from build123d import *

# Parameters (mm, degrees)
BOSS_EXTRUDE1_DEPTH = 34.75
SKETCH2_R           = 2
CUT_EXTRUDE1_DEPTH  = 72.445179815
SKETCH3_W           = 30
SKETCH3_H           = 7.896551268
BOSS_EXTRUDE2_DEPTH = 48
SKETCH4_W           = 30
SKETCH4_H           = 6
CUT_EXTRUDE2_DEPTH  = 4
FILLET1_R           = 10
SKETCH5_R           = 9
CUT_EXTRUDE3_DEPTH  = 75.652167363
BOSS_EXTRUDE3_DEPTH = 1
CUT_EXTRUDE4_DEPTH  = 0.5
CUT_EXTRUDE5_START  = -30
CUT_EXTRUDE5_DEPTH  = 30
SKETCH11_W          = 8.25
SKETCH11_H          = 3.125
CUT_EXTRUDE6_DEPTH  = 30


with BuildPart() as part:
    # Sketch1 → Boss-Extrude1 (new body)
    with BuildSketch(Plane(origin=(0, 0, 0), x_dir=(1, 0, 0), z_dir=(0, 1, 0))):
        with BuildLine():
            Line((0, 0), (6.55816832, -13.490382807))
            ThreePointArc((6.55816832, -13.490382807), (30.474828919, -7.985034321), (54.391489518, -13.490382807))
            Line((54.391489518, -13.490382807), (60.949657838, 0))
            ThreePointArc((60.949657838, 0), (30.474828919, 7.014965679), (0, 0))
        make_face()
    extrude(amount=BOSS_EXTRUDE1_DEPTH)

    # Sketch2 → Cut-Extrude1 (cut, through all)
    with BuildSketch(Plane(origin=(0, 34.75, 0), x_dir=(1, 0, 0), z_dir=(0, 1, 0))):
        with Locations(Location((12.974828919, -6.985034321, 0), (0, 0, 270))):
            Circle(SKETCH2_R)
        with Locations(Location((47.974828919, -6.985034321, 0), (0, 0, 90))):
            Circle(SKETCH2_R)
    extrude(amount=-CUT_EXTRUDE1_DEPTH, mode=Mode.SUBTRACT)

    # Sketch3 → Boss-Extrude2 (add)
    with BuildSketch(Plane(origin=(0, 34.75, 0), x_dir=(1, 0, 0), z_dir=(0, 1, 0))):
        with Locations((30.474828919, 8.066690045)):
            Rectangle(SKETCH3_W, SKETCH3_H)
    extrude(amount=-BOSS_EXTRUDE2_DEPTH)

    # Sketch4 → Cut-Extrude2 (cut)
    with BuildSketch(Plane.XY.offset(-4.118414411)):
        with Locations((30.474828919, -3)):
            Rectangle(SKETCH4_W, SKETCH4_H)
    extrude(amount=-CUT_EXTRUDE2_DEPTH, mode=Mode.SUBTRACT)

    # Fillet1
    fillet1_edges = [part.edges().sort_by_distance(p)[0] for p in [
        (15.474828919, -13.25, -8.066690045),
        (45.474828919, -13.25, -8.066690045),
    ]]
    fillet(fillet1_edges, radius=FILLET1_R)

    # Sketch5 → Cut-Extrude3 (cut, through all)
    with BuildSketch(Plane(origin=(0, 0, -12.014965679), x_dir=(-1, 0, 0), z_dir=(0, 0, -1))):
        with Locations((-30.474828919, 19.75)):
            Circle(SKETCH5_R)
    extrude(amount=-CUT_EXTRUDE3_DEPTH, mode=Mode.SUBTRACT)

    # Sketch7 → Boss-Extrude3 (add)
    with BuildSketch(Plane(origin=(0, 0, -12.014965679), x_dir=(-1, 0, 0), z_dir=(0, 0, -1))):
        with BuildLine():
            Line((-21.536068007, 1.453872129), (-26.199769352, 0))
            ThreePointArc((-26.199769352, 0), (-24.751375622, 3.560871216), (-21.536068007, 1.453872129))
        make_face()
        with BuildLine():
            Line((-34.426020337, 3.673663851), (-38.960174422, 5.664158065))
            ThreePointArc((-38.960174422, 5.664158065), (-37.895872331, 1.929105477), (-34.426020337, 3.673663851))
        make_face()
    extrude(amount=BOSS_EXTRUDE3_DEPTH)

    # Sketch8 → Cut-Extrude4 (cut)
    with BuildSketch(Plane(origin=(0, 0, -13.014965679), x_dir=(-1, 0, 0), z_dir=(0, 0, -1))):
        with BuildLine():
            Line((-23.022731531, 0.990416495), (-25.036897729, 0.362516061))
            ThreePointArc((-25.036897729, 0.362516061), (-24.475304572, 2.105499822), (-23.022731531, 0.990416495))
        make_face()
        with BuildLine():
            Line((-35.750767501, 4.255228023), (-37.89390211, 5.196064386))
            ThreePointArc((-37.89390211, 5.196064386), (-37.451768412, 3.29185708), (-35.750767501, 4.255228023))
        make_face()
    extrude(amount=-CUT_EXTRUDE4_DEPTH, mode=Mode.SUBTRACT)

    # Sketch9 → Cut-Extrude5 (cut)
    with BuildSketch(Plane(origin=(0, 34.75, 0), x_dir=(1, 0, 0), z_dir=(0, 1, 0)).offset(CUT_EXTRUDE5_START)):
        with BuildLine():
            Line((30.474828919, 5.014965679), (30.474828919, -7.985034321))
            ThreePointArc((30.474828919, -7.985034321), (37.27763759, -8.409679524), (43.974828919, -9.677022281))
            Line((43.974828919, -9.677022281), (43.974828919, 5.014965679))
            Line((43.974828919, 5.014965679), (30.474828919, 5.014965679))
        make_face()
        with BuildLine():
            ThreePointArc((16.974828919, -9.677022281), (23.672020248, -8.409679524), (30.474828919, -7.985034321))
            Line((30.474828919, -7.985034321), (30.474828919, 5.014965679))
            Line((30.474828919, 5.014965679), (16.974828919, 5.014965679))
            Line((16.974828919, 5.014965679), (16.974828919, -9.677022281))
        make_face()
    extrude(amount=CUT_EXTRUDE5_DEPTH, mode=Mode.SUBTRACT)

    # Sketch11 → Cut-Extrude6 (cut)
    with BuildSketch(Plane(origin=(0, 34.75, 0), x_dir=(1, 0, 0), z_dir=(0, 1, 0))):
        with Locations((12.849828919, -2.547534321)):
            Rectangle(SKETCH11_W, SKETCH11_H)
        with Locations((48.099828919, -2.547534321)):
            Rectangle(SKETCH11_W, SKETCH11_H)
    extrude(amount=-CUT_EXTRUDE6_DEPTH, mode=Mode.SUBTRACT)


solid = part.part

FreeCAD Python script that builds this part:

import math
import FreeCAD as App
import Part
import Sketcher
from FreeCAD import Vector


def edges_at(feature, points):
    """Names of the edges that pass closest to the given points."""
    edges = feature.Shape.Edges
    near = lambda p: min(range(len(edges)), key=lambda i: edges[i].distToShape(Part.Vertex(*p))[0])
    return sorted({f"Edge{near(p) + 1}" for p in points})


def add_polygon(sketch, points):
    """Adds a closed chain of lines whose ends are joined by coincident constraints."""
    first, n = sketch.GeometryCount, len(points)
    for a, b in zip(points, points[1:] + points[:1]):
        sketch.addGeometry(Part.LineSegment(App.Vector(*a, 0), App.Vector(*b, 0)), False)
    for i in range(n):
        sketch.addConstraint(Sketcher.Constraint("Coincident", first + i, 2, first + (i + 1) % n, 1))

doc = App.newDocument("Part")
body = doc.addObject("PartDesign::Body", "Body")

sketch1 = body.newObject("Sketcher::SketchObject", "Sketch")
sketch1.AttachmentSupport = (doc.getObject("XZ_Plane"), [""])
sketch1.MapMode = "FlatFace"
sketch1.addGeometry(Part.LineSegment(Vector(0, 0, 0), Vector(7, 13, 0)), False)
sketch1.addGeometry(Part.ArcOfCircle(Part.Circle(Vector(30, 63, 0), Vector(0, 0, 1), 55), math.radians(-116), math.radians(-64)), False)
sketch1.addGeometry(Part.LineSegment(Vector(54, 13, 0), Vector(61, 0, 0)), False)
sketch1.addGeometry(Part.ArcOfCircle(Part.Circle(Vector(30, 63, 0), Vector(0, 0, 1), 70), math.radians(-116), math.radians(-64)), False)
sketch1.addConstraint(Sketcher.Constraint("Coincident", 0, 2, 1, 1))
sketch1.addConstraint(Sketcher.Constraint("Coincident", 1, 2, 2, 1))
sketch1.addConstraint(Sketcher.Constraint("Coincident", 2, 2, 3, 2))
sketch1.addConstraint(Sketcher.Constraint("Coincident", 3, 1, 0, 1))
sketch1.addConstraint(Sketcher.Constraint("Coincident", 3, 1, -1, 1))
sketch1.addConstraint(Sketcher.Constraint("Coincident", 3, 3, 1, 3))
sketch1.addConstraint(Sketcher.Constraint("PointOnObject", 2, 2, -1))
sketch1.addConstraint(Sketcher.Constraint("Horizontal", 0, 2, 1, 2))
sketch1.addConstraint(Sketcher.Constraint("Distance", 0, 15.0))
sketch1.addConstraint(Sketcher.Constraint("Radius", 1, 54.70276))
sketch1.addConstraint(Sketcher.Constraint("DistanceX", -1, 1, 1, 3, 30.474829))
sketch1.addConstraint(Sketcher.Constraint("DistanceX", -1, 1, 0, 2, 6.558168))
pad1 = body.newObject("PartDesign::Pad", "Pad")
pad1.Profile = sketch1
pad1.Length = 34.75
pad1.Reversed = True

sketch2 = body.newObject("Sketcher::SketchObject", "Sketch001")
sketch2.AttachmentSupport = (doc.getObject("XZ_Plane"), [""])
sketch2.MapMode = "FlatFace"
sketch2.AttachmentOffset = App.Placement(Vector(0, 0, -34.75), App.Rotation())
sketch2.addGeometry(Part.Circle(Vector(13, 7, 0), Vector(0, 0, 1), 2), False)
sketch2.addGeometry(Part.Circle(Vector(48, 7, 0), Vector(0, 0, 1), 2), False)
sketch2.addConstraint(Sketcher.Constraint("Equal", 0, 1))
sketch2.addConstraint(Sketcher.Constraint("Horizontal", 0, 3, 1, 3))
sketch2.addConstraint(Sketcher.Constraint("Diameter", 0, 4.0))
sketch2.addConstraint(Sketcher.Constraint("DistanceX", 0, 3, 1, 3, 35.0))
sketch2.addConstraint(Sketcher.Constraint("DistanceX", -1, 1, 0, 3, 12.974829))
sketch2.addConstraint(Sketcher.Constraint("DistanceY", -1, 1, 0, 3, 6.985034))
pocket1 = body.newObject("PartDesign::Pocket", "Pocket")
pocket1.Profile = sketch2
pocket1.Type = "ThroughAll"
pocket1.Reversed = True

sketch3 = body.newObject("Sketcher::SketchObject", "Sketch002")
sketch3.AttachmentSupport = (doc.getObject("XZ_Plane"), [""])
sketch3.MapMode = "FlatFace"
sketch3.AttachmentOffset = App.Placement(Vector(0, 0, -34.75), App.Rotation())
add_polygon(sketch3, [(15, -12), (15, -4), (45, -4), (45, -12)])
sketch3.addConstraint(Sketcher.Constraint("Vertical", 0))
sketch3.addConstraint(Sketcher.Constraint("Horizontal", 1))
sketch3.addConstraint(Sketcher.Constraint("Vertical", 2))
sketch3.addConstraint(Sketcher.Constraint("Horizontal", 3))
sketch3.addConstraint(Sketcher.Constraint("DistanceX", 1, 1, 1, 2, 30.0))
sketch3.addConstraint(Sketcher.Constraint("DistanceY", 0, 1, 0, 2, 7.896551))
sketch3.addConstraint(Sketcher.Constraint("DistanceX", -1, 1, 0, 2, 15.474829))
sketch3.addConstraint(Sketcher.Constraint("DistanceY", 0, 2, -1, 1, 4.118414))
pad2 = body.newObject("PartDesign::Pad", "Pad001")
pad2.Profile = sketch3
pad2.Length = 48

sketch4 = body.newObject("Sketcher::SketchObject", "Sketch003")
sketch4.AttachmentSupport = (doc.getObject("XY_Plane"), [""])
sketch4.MapMode = "FlatFace"
sketch4.AttachmentOffset = App.Placement(Vector(0, 0, -4.118414), App.Rotation())
add_polygon(sketch4, [(15, 0), (15, -6), (45, -6), (45, 0)])
sketch4.addConstraint(Sketcher.Constraint("Vertical", 0))
sketch4.addConstraint(Sketcher.Constraint("Horizontal", 1))
sketch4.addConstraint(Sketcher.Constraint("Vertical", 2))
sketch4.addConstraint(Sketcher.Constraint("Horizontal", 3))
sketch4.addConstraint(Sketcher.Constraint("PointOnObject", 2, 2, -1))
sketch4.addConstraint(Sketcher.Constraint("DistanceX", 1, 1, 1, 2, 30.0))
sketch4.addConstraint(Sketcher.Constraint("DistanceY", 0, 2, 0, 1, 6.0))
sketch4.addConstraint(Sketcher.Constraint("DistanceX", -1, 1, 0, 2, 15.474829))
pocket2 = body.newObject("PartDesign::Pocket", "Pocket001")
pocket2.Profile = sketch4
pocket2.Length = 4
doc.recompute()

fillet = body.newObject("PartDesign::Fillet", "Fillet")
fillet.Base = (pocket2, edges_at(pocket2, [(15.475, -13.25, -8.067), (45.475, -13.25, -8.067)]))
fillet.Radius = 10

sketch5 = body.newObject("Sketcher::SketchObject", "Sketch004")
sketch5.AttachmentSupport = (doc.getObject("XY_Plane"), [""])
sketch5.MapMode = "FlatFace"
sketch5.AttachmentOffset = App.Placement(Vector(0, 0, -12.014966), App.Rotation())
sketch5.addGeometry(Part.Circle(Vector(30, 20, 0), Vector(0, 0, 1), 9), False)
sketch5.addConstraint(Sketcher.Constraint("Diameter", 0, 18.0))
sketch5.addConstraint(Sketcher.Constraint("DistanceY", -1, 1, 0, 3, 19.75))
sketch5.addConstraint(Sketcher.Constraint("DistanceX", -1, 1, 0, 3, 30.474829))
pocket3 = body.newObject("PartDesign::Pocket", "Pocket002")
pocket3.Profile = sketch5
pocket3.Type = "ThroughAll"
pocket3.Reversed = True

sketch6 = body.newObject("Sketcher::SketchObject", "Sketch005")
sketch6.AttachmentSupport = (doc.getObject("XY_Plane"), [""])
sketch6.MapMode = "FlatFace"
sketch6.AttachmentOffset = App.Placement(Vector(0, 0, -12.014966), App.Rotation())
sketch6.addGeometry(Part.LineSegment(Vector(26.2, 0, 0), Vector(21.5, 1.5, 0)), False)
sketch6.addGeometry(Part.ArcOfCircle(Part.Circle(Vector(24, 1.2, 0), Vector(0, 0, 1), 2.5), math.radians(-28), math.radians(174)), False)
sketch6.addGeometry(Part.LineSegment(Vector(34.4, 3.7, 0), Vector(39, 5.7, 0)), False)
sketch6.addGeometry(Part.ArcOfCircle(Part.Circle(Vector(36.9, 4.2, 0), Vector(0, 0, 1), 2.5), math.radians(-167), math.radians(34)), False)
sketch6.addConstraint(Sketcher.Constraint("Coincident", 0, 1, 1, 1))
sketch6.addConstraint(Sketcher.Constraint("Coincident", 1, 2, 0, 2))
sketch6.addConstraint(Sketcher.Constraint("Coincident", 2, 1, 3, 1))
sketch6.addConstraint(Sketcher.Constraint("Coincident", 3, 2, 2, 2))
sketch6.addConstraint(Sketcher.Constraint("PointOnObject", 0, 1, -1))
sketch6.addConstraint(Sketcher.Constraint("Radius", 1, 2.48912))
sketch6.addConstraint(Sketcher.Constraint("Radius", 3, 2.520454))
sketch6.addConstraint(Sketcher.Constraint("DistanceX", 1, 2, 0, 1, 4.663701))
sketch6.addConstraint(Sketcher.Constraint("DistanceX", 2, 1, 3, 3, 2.456701))
sketch6.addConstraint(Sketcher.Constraint("DistanceX", 1, 3, 3, 2, 14.9496))
sketch6.addConstraint(Sketcher.Constraint("Distance", 2, 4.95183))
sketch6.addConstraint(Sketcher.Constraint("DistanceX", -1, 1, 3, 3, 36.882722))
sketch6.addConstraint(Sketcher.Constraint("DistanceX", -1, 1, 0, 1, 26.199769))
sketch6.addConstraint(Sketcher.Constraint("DistanceY", -1, 1, 3, 2, 5.664158))
pad3 = body.newObject("PartDesign::Pad", "Pad002")
pad3.Profile = sketch6
pad3.Length = 1
pad3.Reversed = True

sketch7 = body.newObject("Sketcher::SketchObject", "Sketch006")
sketch7.AttachmentSupport = (doc.getObject("XY_Plane"), [""])
sketch7.MapMode = "FlatFace"
sketch7.AttachmentOffset = App.Placement(Vector(0, 0, -13.014966), App.Rotation())
sketch7.addGeometry(Part.LineSegment(Vector(25, 0.4, 0), Vector(23, 1, 0)), False)
sketch7.addGeometry(Part.ArcOfCircle(Part.Circle(Vector(24.1, 1, 0), Vector(0, 0, 1), 1.1), math.radians(-37), math.radians(182)), False)
sketch7.addGeometry(Part.LineSegment(Vector(35.8, 4.3, 0), Vector(37.9, 5.2, 0)), False)
sketch7.addGeometry(Part.ArcOfCircle(Part.Circle(Vector(37, 4.4, 0), Vector(0, 0, 1), 1.2), math.radians(-173), math.radians(40)), False)
sketch7.addConstraint(Sketcher.Constraint("Coincident", 0, 1, 1, 1))
sketch7.addConstraint(Sketcher.Constraint("Coincident", 1, 2, 0, 2))
sketch7.addConstraint(Sketcher.Constraint("Coincident", 2, 1, 3, 1))
sketch7.addConstraint(Sketcher.Constraint("Coincident", 3, 2, 2, 2))
sketch7.addConstraint(Sketcher.Constraint("Radius", 1, 1.120136))
sketch7.addConstraint(Sketcher.Constraint("Radius", 3, 1.220247))
sketch7.addConstraint(Sketcher.Constraint("DistanceY", 0, 1, 1, 2, 0.6279))
sketch7.addConstraint(Sketcher.Constraint("Distance", 0, 2.109769))
sketch7.addConstraint(Sketcher.Constraint("DistanceY", -1, 1, 3, 3, 4.409179))
sketch7.addConstraint(Sketcher.Constraint("DistanceX", -1, 1, 1, 2, 23.022732))
sketch7.addConstraint(Sketcher.Constraint("DistanceY", -1, 1, 2, 1, 4.255228))
sketch7.addConstraint(Sketcher.Constraint("DistanceX", 1, 3, 3, 3, 12.819329))
sketch7.addConstraint(Sketcher.Constraint("DistanceY", 0, 1, 2, 1, 3.892712))
sketch7.addConstraint(Sketcher.Constraint("DistanceX", 3, 3, 3, 2, 0.932638))
pocket4 = body.newObject("PartDesign::Pocket", "Pocket003")
pocket4.Profile = sketch7
pocket4.Length = 0.5
pocket4.Reversed = True

sketch8 = body.newObject("Sketcher::SketchObject", "Sketch007")
sketch8.AttachmentSupport = (doc.getObject("XZ_Plane"), [""])
sketch8.MapMode = "FlatFace"
sketch8.AttachmentOffset = App.Placement(Vector(0, 0, -4.75), App.Rotation())
sketch8.addGeometry(Part.ArcOfCircle(Part.Circle(Vector(30, 63, 0), Vector(0, 0, 1), 55), math.radians(-90), math.radians(-75.71)), False)
sketch8.addGeometry(Part.LineSegment(Vector(44, 10, 0), Vector(44, -5, 0)), False)
sketch8.addGeometry(Part.LineSegment(Vector(44, -5, 0), Vector(17, -5, 0)), False)
sketch8.addGeometry(Part.LineSegment(Vector(17, -5, 0), Vector(17, 10, 0)), False)
sketch8.addGeometry(Part.ArcOfCircle(Part.Circle(Vector(30, 63, 0), Vector(0, 0, 1), 55), math.radians(-104.29), math.radians(-90)), False)
sketch8.addConstraint(Sketcher.Constraint("Coincident", 0, 2, 1, 1))
sketch8.addConstraint(Sketcher.Constraint("Coincident", 1, 2, 2, 1))
sketch8.addConstraint(Sketcher.Constraint("Coincident", 2, 2, 3, 1))
sketch8.addConstraint(Sketcher.Constraint("Coincident", 3, 2, 4, 1))
sketch8.addConstraint(Sketcher.Constraint("Tangent", 4, 2, 0, 1))
sketch8.addConstraint(Sketcher.Constraint("Vertical", 1))
sketch8.addConstraint(Sketcher.Constraint("Horizontal", 2))
sketch8.addConstraint(Sketcher.Constraint("Vertical", 3))
sketch8.addConstraint(Sketcher.Constraint("Equal", 0, 4))
sketch8.addConstraint(Sketcher.Constraint("Horizontal", 0, 2, 3, 2))
sketch8.addConstraint(Sketcher.Constraint("Vertical", 0, 3, 4, 2))
sketch8.addConstraint(Sketcher.Constraint("DistanceX", 2, 2, 2, 1, 27.0))
sketch8.addConstraint(Sketcher.Constraint("DistanceY", 2, 2, 4, 2, 13.0))
sketch8.addConstraint(Sketcher.Constraint("Radius", 0, 54.70276))
sketch8.addConstraint(Sketcher.Constraint("DistanceX", -1, 1, 0, 3, 30.474829))
sketch8.addConstraint(Sketcher.Constraint("DistanceY", -1, 1, 0, 3, 62.687795))
pocket5 = body.newObject("PartDesign::Pocket", "Pocket004")
pocket5.Profile = sketch8
pocket5.Length = 30

sketch9 = body.newObject("Sketcher::SketchObject", "Sketch008")
sketch9.AttachmentSupport = (doc.getObject("XZ_Plane"), [""])
sketch9.MapMode = "FlatFace"
sketch9.AttachmentOffset = App.Placement(Vector(0, 0, -34.75), App.Rotation())
add_polygon(sketch9, [(8.7, 1), (8.7, 4.1), (17, 4.1), (17, 1)])
add_polygon(sketch9, [(44, 1), (44, 4.1), (52.2, 4.1), (52.2, 1)])
sketch9.addConstraint(Sketcher.Constraint("Vertical", 0))
sketch9.addConstraint(Sketcher.Constraint("Horizontal", 1))
sketch9.addConstraint(Sketcher.Constraint("Vertical", 2))
sketch9.addConstraint(Sketcher.Constraint("Horizontal", 3))
sketch9.addConstraint(Sketcher.Constraint("Vertical", 4))
sketch9.addConstraint(Sketcher.Constraint("Horizontal", 5))
sketch9.addConstraint(Sketcher.Constraint("Vertical", 6))
sketch9.addConstraint(Sketcher.Constraint("Horizontal", 7))
sketch9.addConstraint(Sketcher.Constraint("Horizontal", 1, 2, 4, 2))
sketch9.addConstraint(Sketcher.Constraint("Horizontal", 3, 2, 6, 2))
sketch9.addConstraint(Sketcher.Constraint("Equal", 3, 5))
sketch9.addConstraint(Sketcher.Constraint("DistanceX", 1, 2, 4, 2, 27.0))
sketch9.addConstraint(Sketcher.Constraint("DistanceX", 1, 1, 1, 2, 8.25))
sketch9.addConstraint(Sketcher.Constraint("DistanceY", 0, 1, 0, 2, 3.125))
sketch9.addConstraint(Sketcher.Constraint("DistanceX", -1, 1, 0, 2, 8.724829))
sketch9.addConstraint(Sketcher.Constraint("DistanceY", -1, 1, 0, 2, 4.110034))
pocket6 = body.newObject("PartDesign::Pocket", "Pocket005")
pocket6.Profile = sketch9
pocket6.Length = 30
pocket6.Reversed = True

doc.recompute()
